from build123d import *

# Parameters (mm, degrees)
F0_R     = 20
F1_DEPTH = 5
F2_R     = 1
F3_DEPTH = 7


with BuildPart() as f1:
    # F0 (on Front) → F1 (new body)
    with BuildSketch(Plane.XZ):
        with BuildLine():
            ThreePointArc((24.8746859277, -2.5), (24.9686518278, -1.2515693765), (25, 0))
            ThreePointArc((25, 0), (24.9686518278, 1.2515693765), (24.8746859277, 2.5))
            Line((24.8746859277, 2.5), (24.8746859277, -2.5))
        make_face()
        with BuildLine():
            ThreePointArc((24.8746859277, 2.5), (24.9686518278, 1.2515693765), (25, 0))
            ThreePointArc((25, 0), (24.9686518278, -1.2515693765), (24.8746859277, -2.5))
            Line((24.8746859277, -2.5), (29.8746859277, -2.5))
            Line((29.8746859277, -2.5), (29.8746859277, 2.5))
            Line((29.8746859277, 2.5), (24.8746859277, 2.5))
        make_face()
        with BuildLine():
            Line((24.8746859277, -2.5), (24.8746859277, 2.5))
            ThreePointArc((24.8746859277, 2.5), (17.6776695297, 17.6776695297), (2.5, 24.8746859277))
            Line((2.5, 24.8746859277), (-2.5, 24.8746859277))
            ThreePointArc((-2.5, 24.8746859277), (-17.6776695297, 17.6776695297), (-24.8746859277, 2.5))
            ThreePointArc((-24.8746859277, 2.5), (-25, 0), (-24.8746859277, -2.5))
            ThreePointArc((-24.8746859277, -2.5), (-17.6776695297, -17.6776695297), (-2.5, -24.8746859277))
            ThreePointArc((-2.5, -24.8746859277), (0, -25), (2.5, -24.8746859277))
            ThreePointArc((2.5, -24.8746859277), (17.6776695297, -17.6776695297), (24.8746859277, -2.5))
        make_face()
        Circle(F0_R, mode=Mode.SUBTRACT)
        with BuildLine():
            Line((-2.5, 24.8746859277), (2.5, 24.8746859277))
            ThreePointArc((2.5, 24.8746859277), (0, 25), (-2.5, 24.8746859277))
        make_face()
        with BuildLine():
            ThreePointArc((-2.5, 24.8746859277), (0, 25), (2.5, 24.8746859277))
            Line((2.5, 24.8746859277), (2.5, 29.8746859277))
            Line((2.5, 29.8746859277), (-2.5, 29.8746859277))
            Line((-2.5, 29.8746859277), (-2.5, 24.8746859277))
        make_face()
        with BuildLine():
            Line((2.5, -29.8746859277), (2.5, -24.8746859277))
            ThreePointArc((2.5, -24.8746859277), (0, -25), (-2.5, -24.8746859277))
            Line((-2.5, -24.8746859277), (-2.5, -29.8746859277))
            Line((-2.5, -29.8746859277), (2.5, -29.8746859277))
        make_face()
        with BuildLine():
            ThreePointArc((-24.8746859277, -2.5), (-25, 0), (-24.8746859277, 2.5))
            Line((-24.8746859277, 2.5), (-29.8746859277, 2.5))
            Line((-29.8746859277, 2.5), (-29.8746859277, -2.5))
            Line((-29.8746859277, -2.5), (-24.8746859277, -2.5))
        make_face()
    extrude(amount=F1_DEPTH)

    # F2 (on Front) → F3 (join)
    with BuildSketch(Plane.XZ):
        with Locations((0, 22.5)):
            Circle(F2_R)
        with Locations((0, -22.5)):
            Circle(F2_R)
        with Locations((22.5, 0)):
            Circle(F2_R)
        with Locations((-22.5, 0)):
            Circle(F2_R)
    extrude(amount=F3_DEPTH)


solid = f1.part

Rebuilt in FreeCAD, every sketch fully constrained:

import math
import FreeCAD as App
import Part
import Sketcher

V = App.Vector

doc = App.newDocument("Part")
params = doc.addObject("Spreadsheet::Sheet", "Params")
for row, (alias, value) in enumerate([
    ("sketch1_diameter", "40 mm"),
    ("sketch1_radius", "25 mm"),
    ("sketch1_width", "5 mm"),
    ("pad1_length", "5 mm"),
    ("sketch2_diameter", "2 mm"),
    ("pad2_length", "7 mm"),
], start=1):
    params.set(f"A{row}", alias)
    params.set(f"B{row}", "=" + value)
    params.setAlias(f"B{row}", alias)

body = doc.addObject("PartDesign::Body", "Body")

# Sketch on XZ plane
sketch1 = body.newObject("Sketcher::SketchObject", "Sketch")
sketch1.AttachmentSupport = (doc.getObject("XZ_Plane"), [""])
sketch1.MapMode = "FlatFace"
sketch1.addGeometry([
    Part.LineSegment(V(25, -2, 0), V(30, -2, 0)),  # 0
    Part.LineSegment(V(30, -2, 0), V(30, 2, 0)),  # 1
    Part.LineSegment(V(30, 2, 0), V(25, 2, 0)),  # 2
    Part.ArcOfCircle(Part.Circle(V(0, 0, 0), V(0, 0, 1), 25), math.radians(6), math.radians(84)),  # 3
    Part.LineSegment(V(2, 25, 0), V(2, 30, 0)),  # 4
    Part.LineSegment(V(2, 30, 0), V(-2, 30, 0)),  # 5
    Part.LineSegment(V(-2, 30, 0), V(-2, 25, 0)),  # 6
    Part.ArcOfCircle(Part.Circle(V(0, 0, 0), V(0, 0, 1), 25), math.radians(96), math.radians(174)),  # 7
    Part.LineSegment(V(-25, 2, 0), V(-30, 2, 0)),  # 8
    Part.LineSegment(V(-30, 2, 0), V(-30, -2, 0)),  # 9
    Part.LineSegment(V(-30, -2, 0), V(-25, -2, 0)),  # 10
    Part.ArcOfCircle(Part.Circle(V(0, 0, 0), V(0, 0, 1), 25), math.radians(-174), math.radians(-96)),  # 11
    Part.LineSegment(V(-2, -25, 0), V(-2, -30, 0)),  # 12
    Part.LineSegment(V(-2, -30, 0), V(2, -30, 0)),  # 13
    Part.LineSegment(V(2, -30, 0), V(2, -25, 0)),  # 14
    Part.ArcOfCircle(Part.Circle(V(0, 0, 0), V(0, 0, 1), 25), math.radians(-84), math.radians(-6)),  # 15
    Part.Circle(V(0, 0, 0), V(0, 0, 1), 20),  # 16
], False)
sketch1.addConstraint([
    Sketcher.Constraint("Coincident", 0, 2, 1, 1),
    Sketcher.Constraint("Coincident", 1, 2, 2, 1),
    Sketcher.Constraint("Coincident", 2, 2, 3, 1),
    Sketcher.Constraint("Coincident", 3, 2, 4, 1),
    Sketcher.Constraint("Coincident", 4, 2, 5, 1),
    Sketcher.Constraint("Coincident", 5, 2, 6, 1),
    Sketcher.Constraint("Coincident", 6, 2, 7, 1),
    Sketcher.Constraint("Coincident", 7, 2, 8, 1),
    Sketcher.Constraint("Coincident", 8, 2, 9, 1),
    Sketcher.Constraint("Coincident", 9, 2, 10, 1),
    Sketcher.Constraint("Coincident", 10, 2, 11, 1),
    Sketcher.Constraint("Coincident", 11, 2, 12, 1),
    Sketcher.Constraint("Coincident", 12, 2, 13, 1),
    Sketcher.Constraint("Coincident", 13, 2, 14, 1),
    Sketcher.Constraint("Coincident", 14, 2, 15, 1),
    Sketcher.Constraint("Coincident", 15, 2, 0, 1),
    Sketcher.Constraint("Horizontal", 0),
    Sketcher.Constraint("Vertical", 1),
    Sketcher.Constraint("Horizontal", 2),
    Sketcher.Constraint("Vertical", 4),
    Sketcher.Constraint("Horizontal", 5),
    Sketcher.Constraint("Vertical", 6),
    Sketcher.Constraint("Horizontal", 8),
    Sketcher.Constraint("Vertical", 9),
    Sketcher.Constraint("Horizontal", 10),
    Sketcher.Constraint("Vertical", 12),
    Sketcher.Constraint("Horizontal", 13),
    Sketcher.Constraint("Vertical", 14),
    Sketcher.Constraint("Coincident", 3, 3, -1, 1),
    Sketcher.Constraint("Coincident", 7, 3, -1, 1),
    Sketcher.Constraint("Coincident", 11, 3, -1, 1),
    Sketcher.Constraint("Coincident", 15, 3, -1, 1),
    Sketcher.Constraint("Coincident", 16, 3, -1, 1),
    Sketcher.Constraint("Equal", 3, 7),
    Sketcher.Constraint("Equal", 7, 11),
    Sketcher.Constraint("Equal", 11, 15),
    Sketcher.Constraint("Symmetric", 0, 2, 8, 2, -1, 1),
    Sketcher.Constraint("Symmetric", 4, 2, 12, 2, -1, 1),
    Sketcher.Constraint("Horizontal", 3, 2, 6, 2),
    Sketcher.Constraint("Horizontal", 2, 2, 7, 2),
    Sketcher.Constraint("Horizontal", 0, 2, 9, 2),
    Sketcher.Constraint("Horizontal", 11, 2, 14, 2),
    Sketcher.Constraint("Equal", 2, 5),
    Sketcher.Constraint("Equal", 13, 1),
    Sketcher.Constraint("Equal", 1, 4),
    Sketcher.Constraint("Diameter", 16, 40.0),
    Sketcher.Constraint("Radius", 3, 25.0),
    Sketcher.Constraint("DistanceX", 0, 1, 0, 2, 5.0),
])
sketch1.setExpression("Constraints[45]", "Params.sketch1_diameter")
sketch1.setExpression("Constraints[46]", "Params.sketch1_radius")
sketch1.setExpression("Constraints[47]", "Params.sketch1_width")
pad1 = body.newObject("PartDesign::Pad", "Pad")
pad1.Profile = sketch1
pad1.setExpression("Length", "Params.pad1_length")

# Sketch on XZ plane
sketch2 = body.newObject("Sketcher::SketchObject", "Sketch001")
sketch2.AttachmentSupport = (doc.getObject("XZ_Plane"), [""])
sketch2.MapMode = "FlatFace"
sketch2.addGeometry([
    Part.Circle(V(0, 22.5, 0), V(0, 0, 1), 1),
    Part.Circle(V(0, -22.5, 0), V(0, 0, 1), 1),
    Part.Circle(V(22.5, 0, 0), V(0, 0, 1), 1),
    Part.Circle(V(-22.5, 0, 0), V(0, 0, 1), 1),
], False)
sketch2.addConstraint([
    Sketcher.Constraint("Equal", 0, 1),
    Sketcher.Constraint("Equal", 1, 2),
    Sketcher.Constraint("Equal", 2, 3),
    Sketcher.Constraint("Symmetric", 0, 3, 1, 3, -1, 1),
    Sketcher.Constraint("Symmetric", 2, 3, 3, 3, -1, 1),
    Sketcher.Constraint("PointOnObject", 0, 3, -2),
    Sketcher.Constraint("PointOnObject", 2, 3, -1),
    Sketcher.Constraint("Diameter", 0, 2.0),
    Sketcher.Constraint("DistanceY", 1, 3, 0, 3, 45.0),
    Sketcher.Constraint("DistanceX", 3, 3, 2, 3, 45.0),
])
sketch2.setExpression("Constraints[7]", "Params.sketch2_diameter")
pad2 = body.newObject("PartDesign::Pad", "Pad001")
pad2.Profile = sketch2
pad2.setExpression("Length", "Params.pad2_length")

doc.recompute()
